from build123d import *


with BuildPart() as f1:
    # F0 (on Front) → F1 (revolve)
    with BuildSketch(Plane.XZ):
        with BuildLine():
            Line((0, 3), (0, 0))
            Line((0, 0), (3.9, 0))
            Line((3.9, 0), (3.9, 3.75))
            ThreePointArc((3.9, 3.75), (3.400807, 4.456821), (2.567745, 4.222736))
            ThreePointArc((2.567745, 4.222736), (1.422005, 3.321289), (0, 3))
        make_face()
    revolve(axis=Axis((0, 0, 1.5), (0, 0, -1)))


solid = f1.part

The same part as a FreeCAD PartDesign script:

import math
import FreeCAD as App
import Part
import Sketcher
from FreeCAD import Vector

doc = App.newDocument("Part")
params = doc.addObject("Spreadsheet::Sheet", "Params")
for row, (alias, value) in enumerate([
    ("sketch1_height", "3 mm"),
    ("sketch1_radius", "0.75 mm"),
    ("sketch1_width", "3.9 mm"),
    ("sketch1_height2", "3.75 mm"),
    ("revolution_angle", "360 deg"),
], start=1):
    params.set(f"A{row}", alias)
    params.set(f"B{row}", "=" + value)
    params.setAlias(f"B{row}", alias)

body = doc.addObject("PartDesign::Body", "Body")

sketch1 = doc.addObject("Sketcher::SketchObject", "Sketch")
body.addObject(sketch1)
sketch1.AttachmentSupport = (doc.XZ_Plane, [""])
sketch1.MapMode = "FlatFace"
sketch1.addGeometry(Part.LineSegment(Vector(0, 3, 0), Vector(0, 0, 0)), False)
sketch1.addGeometry(Part.LineSegment(Vector(0, 0, 0), Vector(3.9, 0, 0)), False)
sketch1.addGeometry(Part.LineSegment(Vector(3.9, 0, 0), Vector(3.9, 3.8, 0)), False)
sketch1.addGeometry(Part.ArcOfCircle(Part.Circle(Vector(3.1, 3.7, 0), Vector(0, 0, 1), 0.8), math.radians(0), math.radians(141)), False)
sketch1.addGeometry(Part.ArcOfCircle(Part.Circle(Vector(0, 6.3, 0), Vector(0, 0, 1), 3.3), math.radians(-90), math.radians(-39)), False)
sketch1.addConstraint(Sketcher.Constraint("Coincident", 0, 2, 1, 1))
sketch1.addConstraint(Sketcher.Constraint("Coincident", 1, 2, 2, 1))
sketch1.addConstraint(Sketcher.Constraint("Tangent", 2, 2, 3, 1))
sketch1.addConstraint(Sketcher.Constraint("Tangent", 3, 2, 4, 2))
sketch1.addConstraint(Sketcher.Constraint("Coincident", 4, 1, 0, 1))
sketch1.addConstraint(Sketcher.Constraint("Vertical", 0))
sketch1.addConstraint(Sketcher.Constraint("Horizontal", 1))
sketch1.addConstraint(Sketcher.Constraint("Vertical", 2))
sketch1.addConstraint(Sketcher.Constraint("Coincident", 0, 2, -1, 1))
sketch1.addConstraint(Sketcher.Constraint("PointOnObject", 4, 3, -2))
sketch1.addConstraint(Sketcher.Constraint("DistanceY", 0, 2, 0, 1, 3.0))
sketch1.addConstraint(Sketcher.Constraint("Radius", 3, 0.75))
sketch1.addConstraint(Sketcher.Constraint("DistanceX", 1, 1, 1, 2, 3.9))
sketch1.addConstraint(Sketcher.Constraint("DistanceY", 2, 1, 2, 2, 3.75))
sketch1.setExpression("Constraints[10]", "Params.sketch1_height")
sketch1.setExpression("Constraints[11]", "Params.sketch1_radius")
sketch1.setExpression("Constraints[12]", "Params.sketch1_width")
sketch1.setExpression("Constraints[13]", "Params.sketch1_height2")
revolution = doc.addObject("PartDesign::Revolution", "Revolution")
body.addObject(revolution)
revolution.Profile = sketch1
revolution.ReferenceAxis = (sketch1, ["V_Axis"])
revolution.setExpression("Angle", "Params.revolution_angle")

doc.recompute()
